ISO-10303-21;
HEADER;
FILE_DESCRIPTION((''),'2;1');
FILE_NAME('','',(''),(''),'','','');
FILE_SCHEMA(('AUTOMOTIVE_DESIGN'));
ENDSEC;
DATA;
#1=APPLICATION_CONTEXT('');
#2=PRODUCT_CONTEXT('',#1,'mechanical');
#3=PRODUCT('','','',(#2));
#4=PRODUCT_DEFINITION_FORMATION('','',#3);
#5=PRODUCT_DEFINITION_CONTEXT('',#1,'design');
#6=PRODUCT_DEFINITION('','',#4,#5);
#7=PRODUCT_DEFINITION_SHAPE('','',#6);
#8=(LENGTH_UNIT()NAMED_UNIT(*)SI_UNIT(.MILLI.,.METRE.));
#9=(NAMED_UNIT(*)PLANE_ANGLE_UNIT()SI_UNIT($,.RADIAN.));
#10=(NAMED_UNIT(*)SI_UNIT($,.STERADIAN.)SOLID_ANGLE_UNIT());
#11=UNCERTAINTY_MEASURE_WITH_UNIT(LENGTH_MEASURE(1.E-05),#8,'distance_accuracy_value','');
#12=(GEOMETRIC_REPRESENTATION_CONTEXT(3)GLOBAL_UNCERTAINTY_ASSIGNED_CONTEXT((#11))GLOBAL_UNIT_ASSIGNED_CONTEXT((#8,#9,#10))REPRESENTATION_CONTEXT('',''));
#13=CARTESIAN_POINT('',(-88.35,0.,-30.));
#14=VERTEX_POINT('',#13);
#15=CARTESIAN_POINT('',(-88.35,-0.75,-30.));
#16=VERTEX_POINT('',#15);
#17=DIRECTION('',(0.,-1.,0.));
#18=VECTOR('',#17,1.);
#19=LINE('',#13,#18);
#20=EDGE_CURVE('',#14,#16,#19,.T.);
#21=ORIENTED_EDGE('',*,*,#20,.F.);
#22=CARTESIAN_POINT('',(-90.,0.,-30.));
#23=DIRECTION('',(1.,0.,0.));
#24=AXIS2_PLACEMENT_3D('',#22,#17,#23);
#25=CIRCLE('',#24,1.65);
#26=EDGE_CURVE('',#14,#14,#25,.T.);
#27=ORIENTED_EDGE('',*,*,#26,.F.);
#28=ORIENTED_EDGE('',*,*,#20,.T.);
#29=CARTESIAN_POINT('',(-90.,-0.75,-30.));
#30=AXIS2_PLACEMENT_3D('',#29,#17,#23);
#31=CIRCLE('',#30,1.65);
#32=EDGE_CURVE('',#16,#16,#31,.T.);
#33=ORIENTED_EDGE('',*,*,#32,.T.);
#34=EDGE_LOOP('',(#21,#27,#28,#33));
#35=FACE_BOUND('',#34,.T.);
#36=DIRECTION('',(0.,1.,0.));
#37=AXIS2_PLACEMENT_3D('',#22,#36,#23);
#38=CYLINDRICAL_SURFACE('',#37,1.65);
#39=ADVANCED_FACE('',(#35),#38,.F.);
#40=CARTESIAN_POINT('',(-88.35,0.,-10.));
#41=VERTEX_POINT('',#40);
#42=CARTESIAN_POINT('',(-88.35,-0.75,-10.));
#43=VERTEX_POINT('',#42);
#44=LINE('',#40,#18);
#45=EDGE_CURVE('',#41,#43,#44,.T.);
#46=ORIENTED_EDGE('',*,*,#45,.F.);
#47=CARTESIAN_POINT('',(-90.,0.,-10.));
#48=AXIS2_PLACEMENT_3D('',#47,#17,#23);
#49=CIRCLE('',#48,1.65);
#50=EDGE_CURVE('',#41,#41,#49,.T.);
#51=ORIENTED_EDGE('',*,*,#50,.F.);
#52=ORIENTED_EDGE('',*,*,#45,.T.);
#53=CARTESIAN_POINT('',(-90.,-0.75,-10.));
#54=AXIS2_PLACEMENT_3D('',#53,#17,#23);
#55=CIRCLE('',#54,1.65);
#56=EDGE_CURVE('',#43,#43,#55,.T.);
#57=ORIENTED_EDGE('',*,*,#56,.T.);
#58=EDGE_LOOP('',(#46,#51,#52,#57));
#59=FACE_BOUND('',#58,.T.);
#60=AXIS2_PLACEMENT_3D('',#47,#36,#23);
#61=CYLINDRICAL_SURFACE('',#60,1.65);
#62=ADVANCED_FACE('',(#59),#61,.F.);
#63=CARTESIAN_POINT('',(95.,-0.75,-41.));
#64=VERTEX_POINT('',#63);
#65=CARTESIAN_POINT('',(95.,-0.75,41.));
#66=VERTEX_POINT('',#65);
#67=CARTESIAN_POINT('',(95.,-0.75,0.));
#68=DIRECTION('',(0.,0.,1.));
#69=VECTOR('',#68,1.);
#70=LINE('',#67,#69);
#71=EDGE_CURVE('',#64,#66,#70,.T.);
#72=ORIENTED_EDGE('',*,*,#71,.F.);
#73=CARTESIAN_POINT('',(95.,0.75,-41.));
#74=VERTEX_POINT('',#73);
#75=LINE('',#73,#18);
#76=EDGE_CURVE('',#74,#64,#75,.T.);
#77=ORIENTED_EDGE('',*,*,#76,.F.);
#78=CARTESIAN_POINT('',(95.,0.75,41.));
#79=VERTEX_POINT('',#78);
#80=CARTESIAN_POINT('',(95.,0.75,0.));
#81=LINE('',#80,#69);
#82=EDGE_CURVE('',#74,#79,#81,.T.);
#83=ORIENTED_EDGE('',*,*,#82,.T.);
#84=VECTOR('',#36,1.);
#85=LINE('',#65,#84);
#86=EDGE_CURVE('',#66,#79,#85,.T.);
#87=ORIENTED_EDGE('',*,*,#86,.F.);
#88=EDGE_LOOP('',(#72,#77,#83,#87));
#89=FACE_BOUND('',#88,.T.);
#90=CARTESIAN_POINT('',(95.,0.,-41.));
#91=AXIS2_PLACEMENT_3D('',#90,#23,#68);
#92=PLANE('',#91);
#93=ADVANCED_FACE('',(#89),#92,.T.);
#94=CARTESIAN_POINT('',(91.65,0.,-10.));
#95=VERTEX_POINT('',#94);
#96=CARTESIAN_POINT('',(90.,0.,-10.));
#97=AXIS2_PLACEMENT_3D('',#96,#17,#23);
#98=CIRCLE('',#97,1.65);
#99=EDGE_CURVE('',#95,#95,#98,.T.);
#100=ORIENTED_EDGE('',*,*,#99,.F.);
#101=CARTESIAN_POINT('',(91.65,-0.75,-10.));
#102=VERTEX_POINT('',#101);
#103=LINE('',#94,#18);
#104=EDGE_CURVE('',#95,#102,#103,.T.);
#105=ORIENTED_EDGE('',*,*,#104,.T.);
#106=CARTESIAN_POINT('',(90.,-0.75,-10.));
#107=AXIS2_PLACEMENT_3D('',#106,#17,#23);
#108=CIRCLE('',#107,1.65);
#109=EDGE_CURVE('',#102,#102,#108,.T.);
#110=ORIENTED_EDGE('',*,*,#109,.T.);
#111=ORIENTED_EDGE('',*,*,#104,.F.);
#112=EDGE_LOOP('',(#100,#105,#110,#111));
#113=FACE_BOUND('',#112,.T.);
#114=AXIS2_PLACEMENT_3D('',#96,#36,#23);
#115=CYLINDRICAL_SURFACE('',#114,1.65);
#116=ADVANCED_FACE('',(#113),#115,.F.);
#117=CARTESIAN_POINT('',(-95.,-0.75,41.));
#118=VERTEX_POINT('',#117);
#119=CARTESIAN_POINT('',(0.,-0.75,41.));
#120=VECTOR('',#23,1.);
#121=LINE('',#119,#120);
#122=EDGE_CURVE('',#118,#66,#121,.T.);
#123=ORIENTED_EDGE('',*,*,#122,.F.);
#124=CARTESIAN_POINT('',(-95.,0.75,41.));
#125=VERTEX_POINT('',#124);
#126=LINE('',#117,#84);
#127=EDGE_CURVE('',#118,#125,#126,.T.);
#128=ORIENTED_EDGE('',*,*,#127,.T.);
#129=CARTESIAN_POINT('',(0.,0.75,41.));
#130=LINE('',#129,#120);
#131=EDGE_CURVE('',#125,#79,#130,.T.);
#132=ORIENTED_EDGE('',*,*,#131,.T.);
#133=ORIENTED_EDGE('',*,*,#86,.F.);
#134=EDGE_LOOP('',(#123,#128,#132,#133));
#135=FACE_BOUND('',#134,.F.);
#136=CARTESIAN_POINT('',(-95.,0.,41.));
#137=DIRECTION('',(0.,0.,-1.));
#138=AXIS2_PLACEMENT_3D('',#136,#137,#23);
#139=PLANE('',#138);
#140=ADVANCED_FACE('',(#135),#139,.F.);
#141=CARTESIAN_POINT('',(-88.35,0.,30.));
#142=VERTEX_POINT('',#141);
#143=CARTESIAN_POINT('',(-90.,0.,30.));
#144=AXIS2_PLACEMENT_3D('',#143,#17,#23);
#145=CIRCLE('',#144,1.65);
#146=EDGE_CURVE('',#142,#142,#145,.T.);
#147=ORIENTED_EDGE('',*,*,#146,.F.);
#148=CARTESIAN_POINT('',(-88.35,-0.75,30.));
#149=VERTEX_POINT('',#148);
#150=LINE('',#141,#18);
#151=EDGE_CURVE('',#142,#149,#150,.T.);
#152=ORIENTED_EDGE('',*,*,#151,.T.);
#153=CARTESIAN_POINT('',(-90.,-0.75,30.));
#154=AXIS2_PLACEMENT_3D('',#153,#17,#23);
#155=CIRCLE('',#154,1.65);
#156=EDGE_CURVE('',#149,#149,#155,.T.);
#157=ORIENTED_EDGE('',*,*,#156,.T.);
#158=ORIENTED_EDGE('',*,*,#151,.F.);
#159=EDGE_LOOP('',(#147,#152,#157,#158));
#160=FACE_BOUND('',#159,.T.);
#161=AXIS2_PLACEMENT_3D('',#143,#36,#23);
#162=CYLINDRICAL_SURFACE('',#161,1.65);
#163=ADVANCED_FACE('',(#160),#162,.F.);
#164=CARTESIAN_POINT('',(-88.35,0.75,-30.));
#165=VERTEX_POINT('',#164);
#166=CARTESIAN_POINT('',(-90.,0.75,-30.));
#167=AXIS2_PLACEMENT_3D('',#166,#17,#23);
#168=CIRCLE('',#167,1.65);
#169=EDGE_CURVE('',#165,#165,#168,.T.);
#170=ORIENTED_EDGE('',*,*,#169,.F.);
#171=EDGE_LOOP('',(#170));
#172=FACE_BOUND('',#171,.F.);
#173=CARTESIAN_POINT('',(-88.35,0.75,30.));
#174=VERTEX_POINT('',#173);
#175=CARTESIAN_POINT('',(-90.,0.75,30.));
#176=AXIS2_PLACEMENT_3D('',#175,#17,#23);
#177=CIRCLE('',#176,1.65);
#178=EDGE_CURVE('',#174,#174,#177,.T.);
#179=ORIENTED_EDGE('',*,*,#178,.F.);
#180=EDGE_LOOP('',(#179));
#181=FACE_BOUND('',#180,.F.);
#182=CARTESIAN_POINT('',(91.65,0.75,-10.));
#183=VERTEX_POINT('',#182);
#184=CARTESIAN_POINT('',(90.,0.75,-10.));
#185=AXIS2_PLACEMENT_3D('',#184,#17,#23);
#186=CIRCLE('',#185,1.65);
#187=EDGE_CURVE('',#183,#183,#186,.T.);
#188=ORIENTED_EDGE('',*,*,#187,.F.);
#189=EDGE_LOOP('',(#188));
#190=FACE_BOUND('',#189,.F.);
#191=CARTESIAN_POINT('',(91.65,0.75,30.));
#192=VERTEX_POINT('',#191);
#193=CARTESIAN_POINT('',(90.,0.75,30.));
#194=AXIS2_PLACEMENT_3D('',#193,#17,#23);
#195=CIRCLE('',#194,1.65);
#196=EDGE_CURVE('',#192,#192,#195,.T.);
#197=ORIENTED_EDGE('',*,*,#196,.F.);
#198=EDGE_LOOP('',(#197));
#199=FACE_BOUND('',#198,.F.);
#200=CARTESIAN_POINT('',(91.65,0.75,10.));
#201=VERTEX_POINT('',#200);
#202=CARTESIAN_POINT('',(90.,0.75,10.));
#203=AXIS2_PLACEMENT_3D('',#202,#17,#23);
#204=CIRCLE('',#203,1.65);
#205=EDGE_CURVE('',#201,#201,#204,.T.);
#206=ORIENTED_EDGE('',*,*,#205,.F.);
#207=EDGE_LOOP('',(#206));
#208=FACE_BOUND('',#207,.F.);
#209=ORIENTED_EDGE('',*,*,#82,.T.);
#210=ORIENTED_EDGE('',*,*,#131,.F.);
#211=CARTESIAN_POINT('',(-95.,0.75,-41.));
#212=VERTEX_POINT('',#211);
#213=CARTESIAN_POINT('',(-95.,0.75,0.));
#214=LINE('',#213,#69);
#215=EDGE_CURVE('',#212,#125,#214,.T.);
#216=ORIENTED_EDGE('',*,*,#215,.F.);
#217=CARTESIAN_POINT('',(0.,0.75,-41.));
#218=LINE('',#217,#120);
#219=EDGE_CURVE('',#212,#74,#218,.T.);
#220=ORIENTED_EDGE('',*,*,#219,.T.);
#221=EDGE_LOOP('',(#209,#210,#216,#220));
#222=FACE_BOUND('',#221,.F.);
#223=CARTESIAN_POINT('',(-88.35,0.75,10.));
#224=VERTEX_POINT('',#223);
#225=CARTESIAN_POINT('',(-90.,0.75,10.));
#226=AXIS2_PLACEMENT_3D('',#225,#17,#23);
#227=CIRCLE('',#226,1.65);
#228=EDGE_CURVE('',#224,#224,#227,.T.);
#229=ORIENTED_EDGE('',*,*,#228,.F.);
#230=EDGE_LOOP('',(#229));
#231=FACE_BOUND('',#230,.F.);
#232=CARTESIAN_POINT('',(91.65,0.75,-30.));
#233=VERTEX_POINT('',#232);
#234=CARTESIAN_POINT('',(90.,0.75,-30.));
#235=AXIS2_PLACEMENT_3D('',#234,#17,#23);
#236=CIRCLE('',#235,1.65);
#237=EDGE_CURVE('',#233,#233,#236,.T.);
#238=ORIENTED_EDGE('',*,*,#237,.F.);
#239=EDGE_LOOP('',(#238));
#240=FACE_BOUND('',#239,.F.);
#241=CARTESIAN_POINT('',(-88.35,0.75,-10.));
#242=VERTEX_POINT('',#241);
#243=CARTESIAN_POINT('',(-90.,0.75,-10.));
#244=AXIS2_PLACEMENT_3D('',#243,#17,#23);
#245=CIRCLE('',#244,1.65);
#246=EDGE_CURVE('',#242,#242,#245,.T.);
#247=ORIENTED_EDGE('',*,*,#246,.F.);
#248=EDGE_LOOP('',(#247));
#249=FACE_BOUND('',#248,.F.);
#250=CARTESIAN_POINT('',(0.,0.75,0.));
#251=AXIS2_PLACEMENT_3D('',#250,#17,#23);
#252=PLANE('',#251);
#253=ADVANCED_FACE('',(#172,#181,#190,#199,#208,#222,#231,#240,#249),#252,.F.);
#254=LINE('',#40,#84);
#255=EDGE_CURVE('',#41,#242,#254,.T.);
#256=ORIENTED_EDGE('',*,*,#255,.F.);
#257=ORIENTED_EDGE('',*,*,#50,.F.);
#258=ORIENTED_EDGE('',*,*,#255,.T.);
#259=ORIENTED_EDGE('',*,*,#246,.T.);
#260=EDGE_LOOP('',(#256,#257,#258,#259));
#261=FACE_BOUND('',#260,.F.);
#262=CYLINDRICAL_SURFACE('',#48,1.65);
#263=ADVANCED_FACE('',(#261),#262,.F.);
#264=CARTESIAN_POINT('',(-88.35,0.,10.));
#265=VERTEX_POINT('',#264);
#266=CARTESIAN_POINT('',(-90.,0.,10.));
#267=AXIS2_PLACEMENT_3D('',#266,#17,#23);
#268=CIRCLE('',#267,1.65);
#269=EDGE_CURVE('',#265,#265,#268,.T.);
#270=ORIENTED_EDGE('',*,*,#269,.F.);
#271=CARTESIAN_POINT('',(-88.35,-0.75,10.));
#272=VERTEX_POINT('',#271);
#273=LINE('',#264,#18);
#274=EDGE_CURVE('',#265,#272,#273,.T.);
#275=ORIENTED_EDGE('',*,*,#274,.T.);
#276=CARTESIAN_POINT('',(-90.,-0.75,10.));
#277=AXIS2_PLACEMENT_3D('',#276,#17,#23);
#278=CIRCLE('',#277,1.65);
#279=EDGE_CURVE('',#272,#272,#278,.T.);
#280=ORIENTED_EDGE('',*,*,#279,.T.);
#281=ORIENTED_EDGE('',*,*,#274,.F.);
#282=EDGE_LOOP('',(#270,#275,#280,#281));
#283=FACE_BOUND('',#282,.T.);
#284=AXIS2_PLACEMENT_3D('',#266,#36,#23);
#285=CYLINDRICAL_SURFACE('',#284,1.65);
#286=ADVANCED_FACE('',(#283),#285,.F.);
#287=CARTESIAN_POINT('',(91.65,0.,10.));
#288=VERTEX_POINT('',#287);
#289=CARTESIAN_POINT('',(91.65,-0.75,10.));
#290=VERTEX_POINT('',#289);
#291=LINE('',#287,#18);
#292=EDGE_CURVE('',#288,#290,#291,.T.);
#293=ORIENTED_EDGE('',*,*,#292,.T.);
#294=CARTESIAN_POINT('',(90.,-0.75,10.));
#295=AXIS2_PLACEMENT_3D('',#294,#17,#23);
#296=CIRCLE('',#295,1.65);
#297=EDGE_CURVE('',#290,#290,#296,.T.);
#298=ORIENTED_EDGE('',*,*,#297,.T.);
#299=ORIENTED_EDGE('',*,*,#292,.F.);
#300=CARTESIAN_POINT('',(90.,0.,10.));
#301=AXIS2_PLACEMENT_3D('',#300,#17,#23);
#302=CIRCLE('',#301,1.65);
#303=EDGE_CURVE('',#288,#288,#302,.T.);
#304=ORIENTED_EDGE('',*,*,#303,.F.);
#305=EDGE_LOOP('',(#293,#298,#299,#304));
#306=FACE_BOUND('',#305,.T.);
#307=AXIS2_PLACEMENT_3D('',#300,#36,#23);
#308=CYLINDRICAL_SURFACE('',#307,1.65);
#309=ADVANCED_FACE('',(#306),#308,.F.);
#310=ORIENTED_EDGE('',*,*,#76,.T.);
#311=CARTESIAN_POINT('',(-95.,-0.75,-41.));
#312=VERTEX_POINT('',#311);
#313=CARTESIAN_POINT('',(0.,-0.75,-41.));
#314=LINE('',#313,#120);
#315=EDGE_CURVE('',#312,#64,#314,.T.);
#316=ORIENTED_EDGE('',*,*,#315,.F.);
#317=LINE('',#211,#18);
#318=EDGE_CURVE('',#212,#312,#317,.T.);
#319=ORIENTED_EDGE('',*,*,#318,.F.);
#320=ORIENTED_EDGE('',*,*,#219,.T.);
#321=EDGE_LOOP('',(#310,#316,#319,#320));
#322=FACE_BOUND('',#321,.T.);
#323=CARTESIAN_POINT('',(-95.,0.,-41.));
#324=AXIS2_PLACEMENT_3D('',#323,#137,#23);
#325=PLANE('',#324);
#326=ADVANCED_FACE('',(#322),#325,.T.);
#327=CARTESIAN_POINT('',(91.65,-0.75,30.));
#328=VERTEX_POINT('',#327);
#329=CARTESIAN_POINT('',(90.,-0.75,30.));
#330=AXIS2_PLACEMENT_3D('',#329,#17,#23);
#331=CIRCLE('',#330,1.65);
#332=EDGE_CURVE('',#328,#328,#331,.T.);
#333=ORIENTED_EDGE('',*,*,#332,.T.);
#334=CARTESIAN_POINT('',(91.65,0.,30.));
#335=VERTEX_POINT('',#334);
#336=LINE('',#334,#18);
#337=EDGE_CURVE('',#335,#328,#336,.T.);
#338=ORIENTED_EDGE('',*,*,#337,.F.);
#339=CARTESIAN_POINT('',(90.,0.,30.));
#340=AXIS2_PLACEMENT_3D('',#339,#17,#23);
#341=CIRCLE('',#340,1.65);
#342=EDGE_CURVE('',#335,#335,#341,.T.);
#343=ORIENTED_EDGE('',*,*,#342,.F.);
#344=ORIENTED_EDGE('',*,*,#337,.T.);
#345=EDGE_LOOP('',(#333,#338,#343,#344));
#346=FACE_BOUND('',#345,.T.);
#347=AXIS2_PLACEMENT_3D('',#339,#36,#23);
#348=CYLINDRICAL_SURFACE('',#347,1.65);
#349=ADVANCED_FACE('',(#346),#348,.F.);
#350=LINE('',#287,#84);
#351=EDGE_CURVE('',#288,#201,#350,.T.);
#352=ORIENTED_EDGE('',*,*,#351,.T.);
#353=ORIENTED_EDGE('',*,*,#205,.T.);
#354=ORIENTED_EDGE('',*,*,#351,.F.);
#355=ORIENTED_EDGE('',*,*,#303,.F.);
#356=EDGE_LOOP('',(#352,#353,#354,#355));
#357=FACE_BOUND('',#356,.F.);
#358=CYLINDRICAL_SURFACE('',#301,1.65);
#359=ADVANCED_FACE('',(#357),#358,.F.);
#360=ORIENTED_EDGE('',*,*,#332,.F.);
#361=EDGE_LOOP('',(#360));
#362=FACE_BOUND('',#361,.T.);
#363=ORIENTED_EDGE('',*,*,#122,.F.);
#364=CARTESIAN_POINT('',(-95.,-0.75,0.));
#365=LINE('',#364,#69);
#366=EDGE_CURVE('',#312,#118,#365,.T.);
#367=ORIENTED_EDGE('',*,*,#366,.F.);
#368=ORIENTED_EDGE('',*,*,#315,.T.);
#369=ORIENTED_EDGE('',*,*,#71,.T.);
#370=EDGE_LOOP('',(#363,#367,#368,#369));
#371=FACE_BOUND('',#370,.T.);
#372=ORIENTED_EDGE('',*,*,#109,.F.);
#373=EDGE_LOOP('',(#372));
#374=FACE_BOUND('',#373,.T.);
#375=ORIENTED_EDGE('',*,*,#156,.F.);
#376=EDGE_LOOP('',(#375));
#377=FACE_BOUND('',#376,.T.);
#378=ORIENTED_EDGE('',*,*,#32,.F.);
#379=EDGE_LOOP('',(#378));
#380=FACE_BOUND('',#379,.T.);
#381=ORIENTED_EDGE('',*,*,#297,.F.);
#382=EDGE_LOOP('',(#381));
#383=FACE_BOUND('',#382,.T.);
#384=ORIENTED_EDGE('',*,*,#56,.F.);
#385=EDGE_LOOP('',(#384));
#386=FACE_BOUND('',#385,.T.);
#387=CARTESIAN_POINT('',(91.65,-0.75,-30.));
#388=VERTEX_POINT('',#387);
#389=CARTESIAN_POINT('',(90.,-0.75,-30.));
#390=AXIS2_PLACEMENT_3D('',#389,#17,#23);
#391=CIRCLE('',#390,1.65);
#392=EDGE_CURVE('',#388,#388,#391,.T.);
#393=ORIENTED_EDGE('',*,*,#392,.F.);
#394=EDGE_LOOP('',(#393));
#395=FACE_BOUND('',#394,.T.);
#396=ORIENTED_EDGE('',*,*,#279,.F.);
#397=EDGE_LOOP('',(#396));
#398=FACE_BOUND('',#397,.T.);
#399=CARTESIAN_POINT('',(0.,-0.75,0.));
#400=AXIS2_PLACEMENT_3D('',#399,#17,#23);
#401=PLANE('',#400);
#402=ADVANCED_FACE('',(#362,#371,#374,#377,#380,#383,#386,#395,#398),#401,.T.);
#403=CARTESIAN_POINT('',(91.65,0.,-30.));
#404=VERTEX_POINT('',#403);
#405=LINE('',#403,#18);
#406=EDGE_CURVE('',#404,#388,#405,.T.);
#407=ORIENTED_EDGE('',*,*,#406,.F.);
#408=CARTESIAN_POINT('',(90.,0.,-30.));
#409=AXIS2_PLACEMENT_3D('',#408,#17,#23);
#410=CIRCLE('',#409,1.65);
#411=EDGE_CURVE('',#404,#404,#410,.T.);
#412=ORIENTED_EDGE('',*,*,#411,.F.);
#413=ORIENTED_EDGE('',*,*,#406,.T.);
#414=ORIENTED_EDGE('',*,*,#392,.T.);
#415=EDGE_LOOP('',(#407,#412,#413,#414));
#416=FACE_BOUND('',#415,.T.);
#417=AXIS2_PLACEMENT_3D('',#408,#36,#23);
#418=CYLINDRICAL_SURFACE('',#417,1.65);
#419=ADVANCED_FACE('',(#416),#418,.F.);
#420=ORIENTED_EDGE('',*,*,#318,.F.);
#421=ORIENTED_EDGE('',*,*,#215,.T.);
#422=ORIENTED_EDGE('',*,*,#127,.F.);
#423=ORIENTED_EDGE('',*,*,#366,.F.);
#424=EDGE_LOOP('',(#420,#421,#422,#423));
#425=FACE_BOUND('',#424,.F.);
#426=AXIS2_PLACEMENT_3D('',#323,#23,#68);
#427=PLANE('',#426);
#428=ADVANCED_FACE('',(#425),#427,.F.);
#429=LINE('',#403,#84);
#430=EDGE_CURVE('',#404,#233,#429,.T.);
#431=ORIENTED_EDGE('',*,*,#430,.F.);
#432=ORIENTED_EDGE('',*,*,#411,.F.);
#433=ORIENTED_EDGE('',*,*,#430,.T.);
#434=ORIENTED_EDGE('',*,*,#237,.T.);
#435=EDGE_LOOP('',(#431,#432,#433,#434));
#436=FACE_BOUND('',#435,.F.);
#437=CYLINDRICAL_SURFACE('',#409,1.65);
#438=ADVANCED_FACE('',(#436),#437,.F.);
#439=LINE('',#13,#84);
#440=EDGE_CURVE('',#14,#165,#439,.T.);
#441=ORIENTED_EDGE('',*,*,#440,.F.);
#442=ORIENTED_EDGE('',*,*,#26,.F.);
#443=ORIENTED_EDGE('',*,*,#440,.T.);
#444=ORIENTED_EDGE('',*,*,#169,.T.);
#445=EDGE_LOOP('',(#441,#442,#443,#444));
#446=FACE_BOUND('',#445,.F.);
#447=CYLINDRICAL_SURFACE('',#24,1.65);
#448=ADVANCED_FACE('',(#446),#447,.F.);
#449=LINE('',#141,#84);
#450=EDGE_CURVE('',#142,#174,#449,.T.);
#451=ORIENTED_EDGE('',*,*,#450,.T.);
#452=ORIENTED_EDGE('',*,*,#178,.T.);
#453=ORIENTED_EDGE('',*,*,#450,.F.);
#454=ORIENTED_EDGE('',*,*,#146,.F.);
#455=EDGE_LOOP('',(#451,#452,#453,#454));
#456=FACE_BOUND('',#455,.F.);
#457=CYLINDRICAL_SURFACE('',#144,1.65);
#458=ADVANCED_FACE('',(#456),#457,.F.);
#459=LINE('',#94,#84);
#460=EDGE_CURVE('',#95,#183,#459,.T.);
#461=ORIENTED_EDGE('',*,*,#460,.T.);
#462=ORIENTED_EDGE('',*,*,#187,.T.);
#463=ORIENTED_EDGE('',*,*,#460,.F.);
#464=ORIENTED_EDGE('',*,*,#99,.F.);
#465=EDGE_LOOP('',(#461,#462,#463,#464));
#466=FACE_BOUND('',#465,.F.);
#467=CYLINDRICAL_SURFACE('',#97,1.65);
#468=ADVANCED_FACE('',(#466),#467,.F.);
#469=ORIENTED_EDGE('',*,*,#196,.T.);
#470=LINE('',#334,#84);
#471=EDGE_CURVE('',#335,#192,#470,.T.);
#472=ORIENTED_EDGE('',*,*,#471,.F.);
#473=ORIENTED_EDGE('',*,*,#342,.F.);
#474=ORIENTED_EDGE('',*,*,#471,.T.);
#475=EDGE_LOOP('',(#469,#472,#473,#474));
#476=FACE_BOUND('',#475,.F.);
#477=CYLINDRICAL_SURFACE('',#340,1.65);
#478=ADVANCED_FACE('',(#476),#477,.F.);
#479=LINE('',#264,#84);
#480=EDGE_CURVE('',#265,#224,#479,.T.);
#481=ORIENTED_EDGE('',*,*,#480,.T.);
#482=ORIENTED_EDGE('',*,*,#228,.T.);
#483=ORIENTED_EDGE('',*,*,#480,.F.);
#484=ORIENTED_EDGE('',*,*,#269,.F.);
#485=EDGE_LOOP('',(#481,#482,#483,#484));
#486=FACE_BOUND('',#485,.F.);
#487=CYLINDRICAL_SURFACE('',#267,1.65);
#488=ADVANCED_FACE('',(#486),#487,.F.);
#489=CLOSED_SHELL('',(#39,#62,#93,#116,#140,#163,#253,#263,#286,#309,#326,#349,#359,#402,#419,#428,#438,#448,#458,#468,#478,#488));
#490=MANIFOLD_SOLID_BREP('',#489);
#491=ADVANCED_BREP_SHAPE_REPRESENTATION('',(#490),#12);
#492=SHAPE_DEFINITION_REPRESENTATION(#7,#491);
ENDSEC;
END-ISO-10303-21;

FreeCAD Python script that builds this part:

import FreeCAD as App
import Part
import Sketcher

doc = App.newDocument("Part")
body = doc.addObject("PartDesign::Body", "Body")

# Sketch on XZ plane
sketch1 = body.newObject("Sketcher::SketchObject", "Sketch")
sketch1.AttachmentSupport = (doc.getObject("XZ_Plane"), [""])
sketch1.MapMode = "FlatFace"
sketch1.addGeometry([
    Part.LineSegment(App.Vector(-95, 41, 0), App.Vector(-95, -41, 0)),  # 0
    Part.LineSegment(App.Vector(-95, -41, 0), App.Vector(95, -41, 0)),  # 1
    Part.LineSegment(App.Vector(95, -41, 0), App.Vector(95, 41, 0)),  # 2
    Part.LineSegment(App.Vector(95, 41, 0), App.Vector(-95, 41, 0)),  # 3
    Part.Circle(App.Vector(-90, -30, 0), App.Vector(0, 0, 1), 1.65),  # 4
    Part.Circle(App.Vector(-90, -10, 0), App.Vector(0, 0, 1), 1.65),  # 5
    Part.Circle(App.Vector(90, -30, 0), App.Vector(0, 0, 1), 1.65),  # 6
    Part.Circle(App.Vector(90, -10, 0), App.Vector(0, 0, 1), 1.65),  # 7
    Part.Circle(App.Vector(-90, 10, 0), App.Vector(0, 0, 1), 1.65),  # 8
    Part.Circle(App.Vector(-90, 30, 0), App.Vector(0, 0, 1), 1.65),  # 9
    Part.Circle(App.Vector(90, 10, 0), App.Vector(0, 0, 1), 1.65),  # 10
    Part.Circle(App.Vector(90, 30, 0), App.Vector(0, 0, 1), 1.65),  # 11
], False)
sketch1.addConstraint([
    Sketcher.Constraint("Coincident", 0, 2, 1, 1),
    Sketcher.Constraint("Coincident", 1, 2, 2, 1),
    Sketcher.Constraint("Coincident", 2, 2, 3, 1),
    Sketcher.Constraint("Coincident", 3, 2, 0, 1),
    Sketcher.Constraint("Vertical", 0),
    Sketcher.Constraint("Horizontal", 1),
    Sketcher.Constraint("Vertical", 2),
    Sketcher.Constraint("Horizontal", 3),
    Sketcher.Constraint("Equal", 4, 5),
    Sketcher.Constraint("Equal", 5, 6),
    Sketcher.Constraint("Equal", 6, 7),
    Sketcher.Constraint("Equal", 7, 8),
    Sketcher.Constraint("Equal", 8, 9),
    Sketcher.Constraint("Equal", 9, 10),
    Sketcher.Constraint("Equal", 10, 11),
    Sketcher.Constraint("Symmetric", 7, 3, 8, 3, -1, 1),
    Sketcher.Constraint("Symmetric", 6, 3, 9, 3, -1, 1),
    Sketcher.Constraint("Symmetric", 5, 3, 10, 3, -1, 1),
    Sketcher.Constraint("Symmetric", 4, 3, 11, 3, -1, 1),
    Sketcher.Constraint("Symmetric", 0, 2, 2, 2, -1, 1),
    Sketcher.Constraint("Symmetric", 4, 3, 6, 3, -2),
    Sketcher.Constraint("Symmetric", 5, 3, 7, 3, -2),
    Sketcher.Constraint("Vertical", 4, 3, 5, 3),
    Sketcher.Constraint("Diameter", 4, 3.3),
    Sketcher.Constraint("DistanceX", 1, 1, 1, 2, 190.0),
    Sketcher.Constraint("DistanceY", 0, 2, 0, 1, 82.0),
    Sketcher.Constraint("DistanceX", 4, 3, -1, 1, 90.0),
    Sketcher.Constraint("DistanceY", 4, 3, -1, 1, 30.0),
    Sketcher.Constraint("DistanceY", 5, 3, -1, 1, 10.0),
])
pad1 = body.newObject("PartDesign::Pad", "Pad")
pad1.Profile = sketch1
pad1.Type = "TwoLengths"
pad1.Length = 0.75
pad1.Length2 = 0.75

doc.recompute()
